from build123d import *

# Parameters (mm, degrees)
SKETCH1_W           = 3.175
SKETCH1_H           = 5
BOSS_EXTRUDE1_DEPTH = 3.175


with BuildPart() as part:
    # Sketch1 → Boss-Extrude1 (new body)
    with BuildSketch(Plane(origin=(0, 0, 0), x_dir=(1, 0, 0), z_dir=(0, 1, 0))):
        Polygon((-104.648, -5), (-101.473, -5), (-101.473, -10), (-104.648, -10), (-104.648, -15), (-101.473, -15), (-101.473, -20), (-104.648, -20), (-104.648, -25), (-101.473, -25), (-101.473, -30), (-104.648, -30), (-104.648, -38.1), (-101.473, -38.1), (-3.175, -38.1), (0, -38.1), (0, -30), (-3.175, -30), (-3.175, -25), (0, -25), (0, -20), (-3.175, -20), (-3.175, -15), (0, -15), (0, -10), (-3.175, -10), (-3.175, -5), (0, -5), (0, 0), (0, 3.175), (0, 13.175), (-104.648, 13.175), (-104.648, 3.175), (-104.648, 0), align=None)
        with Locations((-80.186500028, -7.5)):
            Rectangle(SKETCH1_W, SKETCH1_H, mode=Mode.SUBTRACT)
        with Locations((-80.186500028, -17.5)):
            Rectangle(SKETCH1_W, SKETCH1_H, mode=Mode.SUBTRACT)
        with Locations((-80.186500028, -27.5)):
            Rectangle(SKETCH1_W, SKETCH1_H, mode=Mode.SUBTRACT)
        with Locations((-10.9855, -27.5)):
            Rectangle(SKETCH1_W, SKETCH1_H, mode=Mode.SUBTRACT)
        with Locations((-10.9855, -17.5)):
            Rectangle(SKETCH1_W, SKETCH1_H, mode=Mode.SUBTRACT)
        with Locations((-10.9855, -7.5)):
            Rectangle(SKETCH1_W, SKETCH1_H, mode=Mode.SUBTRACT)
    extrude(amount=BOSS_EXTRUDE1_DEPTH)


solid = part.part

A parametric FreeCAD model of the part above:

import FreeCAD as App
import Part
import Sketcher
Q = App.Units.Quantity


def add_polygon(sketch, points):
    """Adds a closed chain of lines whose ends are joined by coincident constraints."""
    first, n = sketch.GeometryCount, len(points)
    for a, b in zip(points, points[1:] + points[:1]):
        sketch.addGeometry(Part.LineSegment(App.Vector(*a, 0), App.Vector(*b, 0)), False)
    for i in range(n):
        sketch.addConstraint(Sketcher.Constraint("Coincident", first + i, 2, first + (i + 1) % n, 1))

doc = App.newDocument("Part")
params = doc.addObject("Spreadsheet::Sheet", "Params")
for row, (alias, value) in enumerate([
    ("sketch1_height", "5 mm"),
    ("sketch1_height2", "8.1 mm"),
    ("pad1_length", "3.175 mm"),
], start=1):
    params.set(f"A{row}", alias)
    params.set(f"B{row}", "=" + value)
    params.setAlias(f"B{row}", alias)

body = doc.addObject("PartDesign::Body", "Body")

sketch1 = body.newObject("Sketcher::SketchObject", "Sketch")
sketch1.AttachmentSupport = (doc.getObject("XZ_Plane"), [""])
sketch1.MapMode = "FlatFace"
add_polygon(sketch1, [(-104.6, 5), (-101.5, 5), (-101.5, 10), (-104.6, 10), (-104.6, 15), (-101.5, 15), (-101.5, 20), (-104.6, 20), (-104.6, 25), (-101.5, 25), (-101.5, 30), (-104.6, 30), (-104.6, 38.1), (0, 38.1), (0, 30), (-3.2, 30), (-3.2, 25), (0, 25), (0, 20), (-3.2, 20), (-3.2, 15), (0, 15), (0, 10), (-3.2, 10), (-3.2, 5), (0, 5), (0, -13.2), (-104.6, -13.2)])
add_polygon(sketch1, [(-78.6, 30), (-81.8, 30), (-81.8, 25), (-78.6, 25)])
add_polygon(sketch1, [(-9.4, 30), (-12.6, 30), (-12.6, 25), (-9.4, 25)])
add_polygon(sketch1, [(-78.6, 20), (-81.8, 20), (-81.8, 15), (-78.6, 15)])
add_polygon(sketch1, [(-78.6, 10), (-81.8, 10), (-81.8, 5), (-78.6, 5)])
add_polygon(sketch1, [(-9.4, 20), (-12.6, 20), (-12.6, 15), (-9.4, 15)])
add_polygon(sketch1, [(-9.4, 10), (-12.6, 10), (-12.6, 5), (-9.4, 5)])
sketch1.addConstraint([
    Sketcher.Constraint("Horizontal", 0),
    Sketcher.Constraint("Vertical", 1),
    Sketcher.Constraint("Horizontal", 2),
    Sketcher.Constraint("Vertical", 3),
    Sketcher.Constraint("Horizontal", 4),
    Sketcher.Constraint("Vertical", 5),
    Sketcher.Constraint("Horizontal", 6),
    Sketcher.Constraint("Vertical", 7),
    Sketcher.Constraint("Horizontal", 8),
    Sketcher.Constraint("Vertical", 9),
    Sketcher.Constraint("Horizontal", 10),
    Sketcher.Constraint("Vertical", 11),
    Sketcher.Constraint("Horizontal", 12),
    Sketcher.Constraint("Vertical", 13),
    Sketcher.Constraint("Horizontal", 14),
    Sketcher.Constraint("Vertical", 15),
    Sketcher.Constraint("Horizontal", 16),
    Sketcher.Constraint("Vertical", 17),
    Sketcher.Constraint("Horizontal", 18),
    Sketcher.Constraint("Vertical", 19),
    Sketcher.Constraint("Horizontal", 20),
    Sketcher.Constraint("Vertical", 21),
    Sketcher.Constraint("Horizontal", 22),
    Sketcher.Constraint("Vertical", 23),
    Sketcher.Constraint("Horizontal", 24),
    Sketcher.Constraint("Vertical", 25),
    Sketcher.Constraint("Horizontal", 26),
    Sketcher.Constraint("Vertical", 27),
    Sketcher.Constraint("Horizontal", 28),
    Sketcher.Constraint("Vertical", 29),
    Sketcher.Constraint("Horizontal", 30),
    Sketcher.Constraint("Vertical", 31),
    Sketcher.Constraint("Horizontal", 32),
    Sketcher.Constraint("Vertical", 33),
    Sketcher.Constraint("Horizontal", 34),
    Sketcher.Constraint("Vertical", 35),
    Sketcher.Constraint("Horizontal", 36),
    Sketcher.Constraint("Vertical", 37),
    Sketcher.Constraint("Horizontal", 38),
    Sketcher.Constraint("Vertical", 39),
    Sketcher.Constraint("Horizontal", 40),
    Sketcher.Constraint("Vertical", 41),
    Sketcher.Constraint("Horizontal", 42),
    Sketcher.Constraint("Vertical", 43),
    Sketcher.Constraint("Horizontal", 44),
    Sketcher.Constraint("Vertical", 45),
    Sketcher.Constraint("Horizontal", 46),
    Sketcher.Constraint("Vertical", 47),
    Sketcher.Constraint("Horizontal", 48),
    Sketcher.Constraint("Vertical", 49),
    Sketcher.Constraint("Horizontal", 50),
    Sketcher.Constraint("Vertical", 51),
    Sketcher.Constraint("PointOnObject", 12, 2, -2),
    Sketcher.Constraint("PointOnObject", 16, 2, -2),
    Sketcher.Constraint("PointOnObject", 20, 2, -2),
    Sketcher.Constraint("PointOnObject", 24, 2, -2),
    Sketcher.Constraint("Horizontal", 10, 2, 13, 2),
    Sketcher.Constraint("Horizontal", 8, 2, 15, 2),
    Sketcher.Constraint("Horizontal", 6, 2, 17, 2),
    Sketcher.Constraint("Horizontal", 4, 2, 19, 2),
    Sketcher.Constraint("Horizontal", 2, 2, 21, 2),
    Sketcher.Constraint("Horizontal", 0, 2, 23, 2),
    Sketcher.Constraint("Horizontal", 14, 2, 28, 2),
    Sketcher.Constraint("Horizontal", 16, 2, 29, 2),
    Sketcher.Constraint("Horizontal", 31, 2, 32, 2),
    Sketcher.Constraint("Horizontal", 30, 2, 33, 2),
    Sketcher.Constraint("Horizontal", 18, 2, 36, 2),
    Sketcher.Constraint("Horizontal", 20, 2, 37, 2),
    Sketcher.Constraint("Horizontal", 22, 2, 40, 2),
    Sketcher.Constraint("Horizontal", 27, 2, 41, 2),
    Sketcher.Constraint("Horizontal", 39, 2, 44, 2),
    Sketcher.Constraint("Horizontal", 38, 2, 45, 2),
    Sketcher.Constraint("Horizontal", 43, 2, 48, 2),
    Sketcher.Constraint("Horizontal", 42, 2, 49, 2),
    Sketcher.Constraint("Vertical", 1, 2, 4, 2),
    Sketcher.Constraint("Vertical", 3, 2, 6, 2),
    Sketcher.Constraint("Vertical", 5, 2, 8, 2),
    Sketcher.Constraint("Vertical", 7, 2, 10, 2),
    Sketcher.Constraint("Vertical", 15, 2, 18, 2),
    Sketcher.Constraint("Vertical", 19, 2, 22, 2),
    Sketcher.Constraint("Vertical", 11, 2, 26, 2),
    Sketcher.Constraint("Vertical", 29, 2, 36, 2),
    Sketcher.Constraint("Vertical", 31, 2, 38, 2),
    Sketcher.Constraint("Vertical", 37, 2, 40, 2),
    Sketcher.Constraint("Vertical", 39, 2, 42, 2),
    Sketcher.Constraint("Vertical", 33, 2, 44, 2),
    Sketcher.Constraint("Vertical", 35, 2, 46, 2),
    Sketcher.Constraint("Vertical", 45, 2, 48, 2),
    Sketcher.Constraint("Vertical", 47, 2, 50, 2),
    Sketcher.Constraint("Equal", 10, 14),
    Sketcher.Constraint("Equal", 24, 28),
    Sketcher.Constraint("Equal", 30, 32),
    Sketcher.Constraint("Equal", 1, 3),
    Sketcher.Constraint("Equal", 3, 5),
    Sketcher.Constraint("Equal", 5, 7),
    Sketcher.Constraint("Equal", 7, 9),
    Sketcher.Constraint("DistanceY", 1, 1, 1, 2, Q("5 mm")),
    Sketcher.Constraint("DistanceY", 11, 1, 11, 2, Q("8.1 mm")),
    Sketcher.Constraint("DistanceY", -1, 1, 0, 2, Q("5 mm")),
    Sketcher.Constraint("DistanceX", 0, 1, 0, 2, Q("3.175 mm")),
    Sketcher.Constraint("DistanceX", 12, 1, 12, 2, Q("104.648 mm")),
    Sketcher.Constraint("DistanceY", 25, 2, 25, 1, Q("18.175 mm")),
    Sketcher.Constraint("DistanceX", 28, 2, -1, 1, Q("81.774 mm")),
    Sketcher.Constraint("DistanceX", 32, 2, -1, 1, Q("12.573 mm")),
])
sketch1.setExpression("Constraints[148]", "Params.sketch1_height")
sketch1.setExpression("Constraints[149]", "Params.sketch1_height2")
pad1 = body.newObject("PartDesign::Pad", "Pad")
pad1.Profile = sketch1
pad1.setExpression("Length", "Params.pad1_length")
pad1.Reversed = True

doc.recompute()
